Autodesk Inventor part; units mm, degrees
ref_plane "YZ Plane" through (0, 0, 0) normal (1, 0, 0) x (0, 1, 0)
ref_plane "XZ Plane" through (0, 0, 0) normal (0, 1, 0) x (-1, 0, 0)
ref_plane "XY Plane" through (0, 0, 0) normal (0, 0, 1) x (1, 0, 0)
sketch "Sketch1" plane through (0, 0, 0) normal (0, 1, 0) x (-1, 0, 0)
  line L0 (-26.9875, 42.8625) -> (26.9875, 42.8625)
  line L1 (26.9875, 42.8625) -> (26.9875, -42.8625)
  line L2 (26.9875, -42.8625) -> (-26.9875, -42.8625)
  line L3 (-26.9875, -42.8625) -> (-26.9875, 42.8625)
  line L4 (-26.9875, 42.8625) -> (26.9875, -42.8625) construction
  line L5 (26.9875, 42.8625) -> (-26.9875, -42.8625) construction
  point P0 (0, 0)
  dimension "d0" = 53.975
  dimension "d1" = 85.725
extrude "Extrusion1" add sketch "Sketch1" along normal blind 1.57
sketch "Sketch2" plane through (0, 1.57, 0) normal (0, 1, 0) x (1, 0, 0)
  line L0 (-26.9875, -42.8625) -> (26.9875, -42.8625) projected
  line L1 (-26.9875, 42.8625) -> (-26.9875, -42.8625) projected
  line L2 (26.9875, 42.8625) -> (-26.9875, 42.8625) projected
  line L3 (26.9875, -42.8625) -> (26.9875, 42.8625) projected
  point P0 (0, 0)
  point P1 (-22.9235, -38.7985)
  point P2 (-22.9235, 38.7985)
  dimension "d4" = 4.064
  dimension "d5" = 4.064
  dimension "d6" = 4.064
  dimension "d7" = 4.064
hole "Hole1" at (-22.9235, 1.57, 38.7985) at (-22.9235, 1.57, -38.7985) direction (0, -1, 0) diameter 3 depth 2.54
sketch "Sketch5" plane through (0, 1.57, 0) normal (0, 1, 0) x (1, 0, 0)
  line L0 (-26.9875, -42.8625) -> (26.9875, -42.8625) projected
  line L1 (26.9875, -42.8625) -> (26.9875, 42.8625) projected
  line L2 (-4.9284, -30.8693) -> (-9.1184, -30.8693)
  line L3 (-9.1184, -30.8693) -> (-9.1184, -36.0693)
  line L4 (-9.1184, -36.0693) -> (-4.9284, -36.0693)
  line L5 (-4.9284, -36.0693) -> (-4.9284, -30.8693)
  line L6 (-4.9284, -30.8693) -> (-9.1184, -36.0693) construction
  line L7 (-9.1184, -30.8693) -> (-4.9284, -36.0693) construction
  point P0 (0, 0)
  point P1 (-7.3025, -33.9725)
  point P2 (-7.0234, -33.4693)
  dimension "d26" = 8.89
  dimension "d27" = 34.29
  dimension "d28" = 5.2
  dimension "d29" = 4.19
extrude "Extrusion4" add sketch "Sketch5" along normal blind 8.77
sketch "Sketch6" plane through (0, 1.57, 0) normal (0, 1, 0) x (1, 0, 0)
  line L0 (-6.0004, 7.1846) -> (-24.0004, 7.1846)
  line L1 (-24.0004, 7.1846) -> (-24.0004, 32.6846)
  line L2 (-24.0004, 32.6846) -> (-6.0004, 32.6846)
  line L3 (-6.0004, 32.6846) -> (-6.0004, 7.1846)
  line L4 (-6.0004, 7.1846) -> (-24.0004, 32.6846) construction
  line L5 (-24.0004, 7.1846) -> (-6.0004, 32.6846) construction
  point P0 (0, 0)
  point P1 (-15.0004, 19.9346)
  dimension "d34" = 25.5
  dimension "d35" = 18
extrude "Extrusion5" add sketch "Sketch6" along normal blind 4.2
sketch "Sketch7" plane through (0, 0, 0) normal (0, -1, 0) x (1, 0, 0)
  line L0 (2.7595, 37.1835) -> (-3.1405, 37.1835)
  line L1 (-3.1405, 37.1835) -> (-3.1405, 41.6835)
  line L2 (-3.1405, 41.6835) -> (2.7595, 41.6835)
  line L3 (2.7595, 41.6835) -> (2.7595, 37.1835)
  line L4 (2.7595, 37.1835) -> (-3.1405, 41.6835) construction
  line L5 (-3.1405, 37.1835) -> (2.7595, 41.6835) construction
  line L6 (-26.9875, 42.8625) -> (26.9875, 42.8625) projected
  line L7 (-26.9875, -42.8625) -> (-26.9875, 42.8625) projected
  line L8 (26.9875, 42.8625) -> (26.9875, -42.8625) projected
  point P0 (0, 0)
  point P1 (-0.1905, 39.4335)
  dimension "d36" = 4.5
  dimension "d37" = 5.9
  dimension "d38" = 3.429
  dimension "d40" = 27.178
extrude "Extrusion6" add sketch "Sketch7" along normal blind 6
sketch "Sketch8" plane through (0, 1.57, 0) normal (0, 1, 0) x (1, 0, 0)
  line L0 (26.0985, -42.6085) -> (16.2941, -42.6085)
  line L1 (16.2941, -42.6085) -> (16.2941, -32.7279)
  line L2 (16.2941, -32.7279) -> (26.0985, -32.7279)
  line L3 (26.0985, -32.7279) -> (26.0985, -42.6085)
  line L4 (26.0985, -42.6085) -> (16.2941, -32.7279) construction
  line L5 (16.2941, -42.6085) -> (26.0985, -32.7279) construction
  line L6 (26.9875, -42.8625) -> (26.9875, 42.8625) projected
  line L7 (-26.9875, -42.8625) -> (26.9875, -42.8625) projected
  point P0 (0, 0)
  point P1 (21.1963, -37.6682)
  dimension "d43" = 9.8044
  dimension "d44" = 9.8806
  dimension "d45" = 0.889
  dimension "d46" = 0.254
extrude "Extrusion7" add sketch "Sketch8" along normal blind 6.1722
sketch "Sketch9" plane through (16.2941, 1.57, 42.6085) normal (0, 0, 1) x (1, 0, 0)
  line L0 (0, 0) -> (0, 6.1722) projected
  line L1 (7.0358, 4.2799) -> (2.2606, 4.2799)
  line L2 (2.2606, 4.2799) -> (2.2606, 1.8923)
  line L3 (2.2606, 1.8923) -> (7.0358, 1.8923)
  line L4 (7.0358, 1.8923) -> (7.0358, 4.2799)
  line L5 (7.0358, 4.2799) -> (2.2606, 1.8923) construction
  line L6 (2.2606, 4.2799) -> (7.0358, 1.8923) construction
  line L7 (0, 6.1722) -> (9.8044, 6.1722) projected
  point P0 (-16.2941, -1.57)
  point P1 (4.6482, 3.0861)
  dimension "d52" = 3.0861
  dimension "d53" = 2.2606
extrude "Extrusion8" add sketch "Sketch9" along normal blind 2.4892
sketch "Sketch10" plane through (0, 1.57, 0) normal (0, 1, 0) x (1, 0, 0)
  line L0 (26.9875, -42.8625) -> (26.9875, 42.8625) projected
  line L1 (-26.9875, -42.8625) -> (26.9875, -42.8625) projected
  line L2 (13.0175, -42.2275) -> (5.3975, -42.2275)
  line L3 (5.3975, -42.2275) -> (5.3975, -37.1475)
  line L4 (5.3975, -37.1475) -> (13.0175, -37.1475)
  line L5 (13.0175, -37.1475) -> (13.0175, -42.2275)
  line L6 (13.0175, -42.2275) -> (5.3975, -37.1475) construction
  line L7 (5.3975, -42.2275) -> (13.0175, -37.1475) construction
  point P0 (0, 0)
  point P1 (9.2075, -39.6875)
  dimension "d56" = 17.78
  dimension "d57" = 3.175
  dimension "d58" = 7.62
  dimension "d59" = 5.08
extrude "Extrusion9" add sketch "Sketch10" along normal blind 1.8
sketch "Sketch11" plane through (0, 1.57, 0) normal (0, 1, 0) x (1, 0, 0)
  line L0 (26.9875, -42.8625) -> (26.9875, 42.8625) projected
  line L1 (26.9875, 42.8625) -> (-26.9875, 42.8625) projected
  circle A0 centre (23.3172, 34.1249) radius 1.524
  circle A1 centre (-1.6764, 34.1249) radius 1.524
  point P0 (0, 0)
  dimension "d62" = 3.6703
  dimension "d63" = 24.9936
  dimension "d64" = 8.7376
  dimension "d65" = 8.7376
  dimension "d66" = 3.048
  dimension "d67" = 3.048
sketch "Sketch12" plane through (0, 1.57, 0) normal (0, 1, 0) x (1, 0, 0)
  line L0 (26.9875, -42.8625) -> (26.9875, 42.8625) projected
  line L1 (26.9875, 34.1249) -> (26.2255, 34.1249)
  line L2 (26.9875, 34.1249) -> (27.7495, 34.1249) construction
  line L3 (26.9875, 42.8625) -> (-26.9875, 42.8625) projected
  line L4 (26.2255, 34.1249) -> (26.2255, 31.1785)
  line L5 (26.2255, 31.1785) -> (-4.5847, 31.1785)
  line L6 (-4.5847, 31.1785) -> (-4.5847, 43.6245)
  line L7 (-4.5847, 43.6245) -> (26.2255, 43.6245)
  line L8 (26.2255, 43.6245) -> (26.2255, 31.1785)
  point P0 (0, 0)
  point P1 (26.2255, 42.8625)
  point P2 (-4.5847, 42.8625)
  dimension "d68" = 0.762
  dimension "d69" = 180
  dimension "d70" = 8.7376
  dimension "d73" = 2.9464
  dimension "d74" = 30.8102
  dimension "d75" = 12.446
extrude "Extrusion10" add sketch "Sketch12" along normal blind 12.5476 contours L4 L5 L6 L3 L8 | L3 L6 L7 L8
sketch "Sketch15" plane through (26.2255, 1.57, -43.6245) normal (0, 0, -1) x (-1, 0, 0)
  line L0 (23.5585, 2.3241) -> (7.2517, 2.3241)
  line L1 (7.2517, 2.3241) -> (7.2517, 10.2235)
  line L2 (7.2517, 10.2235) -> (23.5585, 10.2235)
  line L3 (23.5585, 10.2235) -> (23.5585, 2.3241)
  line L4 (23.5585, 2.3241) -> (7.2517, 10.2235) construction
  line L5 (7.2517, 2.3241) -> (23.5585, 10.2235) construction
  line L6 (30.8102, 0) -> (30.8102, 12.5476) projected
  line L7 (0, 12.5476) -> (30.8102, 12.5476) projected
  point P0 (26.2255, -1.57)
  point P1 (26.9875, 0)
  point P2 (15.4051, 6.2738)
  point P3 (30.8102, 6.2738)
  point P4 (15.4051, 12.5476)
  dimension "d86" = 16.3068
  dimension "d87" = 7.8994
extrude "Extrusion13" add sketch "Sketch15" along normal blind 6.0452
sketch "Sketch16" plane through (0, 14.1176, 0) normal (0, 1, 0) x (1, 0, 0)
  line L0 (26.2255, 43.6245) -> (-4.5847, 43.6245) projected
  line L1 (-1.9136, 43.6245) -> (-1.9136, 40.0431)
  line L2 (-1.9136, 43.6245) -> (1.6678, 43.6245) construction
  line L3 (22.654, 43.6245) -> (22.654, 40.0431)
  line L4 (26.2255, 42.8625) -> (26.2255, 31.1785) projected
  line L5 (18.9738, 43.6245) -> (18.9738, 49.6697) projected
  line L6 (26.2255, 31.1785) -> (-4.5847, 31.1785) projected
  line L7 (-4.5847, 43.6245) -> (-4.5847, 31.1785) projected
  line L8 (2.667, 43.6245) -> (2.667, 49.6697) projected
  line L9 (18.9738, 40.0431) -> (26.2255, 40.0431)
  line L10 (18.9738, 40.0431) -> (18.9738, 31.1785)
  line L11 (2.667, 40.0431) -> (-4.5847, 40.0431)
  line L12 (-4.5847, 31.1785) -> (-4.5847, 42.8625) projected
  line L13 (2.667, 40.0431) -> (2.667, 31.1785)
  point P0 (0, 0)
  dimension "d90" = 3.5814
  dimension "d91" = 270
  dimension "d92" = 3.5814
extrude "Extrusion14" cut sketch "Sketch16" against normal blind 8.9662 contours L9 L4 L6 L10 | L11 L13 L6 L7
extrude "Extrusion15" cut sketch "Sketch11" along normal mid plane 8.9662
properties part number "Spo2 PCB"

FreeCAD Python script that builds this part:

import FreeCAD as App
import Part
import Sketcher
from FreeCAD import Vector
Q = App.Units.Quantity

doc = App.newDocument("Part")
params = doc.addObject("Spreadsheet::Sheet", "Params")
for row, (alias, value) in enumerate([
    ("sketch1_width", "2.125 in"),
    ("sketch1_height", "3.375 in"),
    ("pad1_length", "0.061811 in"),
    ("hole_diameter", "0.1181102 in"),
    ("hole_depth", "0.1 in"),
    ("pad2_length", "8.77 mm"),
    ("pad3_length", "4.2 mm"),
    ("pad4_length", "6 mm"),
    ("sketch6_width", "0.386 in"),
    ("sketch6_height", "0.389 in"),
    ("pad5_length", "0.243 in"),
    ("sketch7_width", "0.188 in"),
    ("sketch7_height", "0.094 in"),
    ("pad6_length", "0.098 in"),
    ("sketch8_width", "0.3 in"),
    ("sketch8_height", "0.2 in"),
    ("pad7_length", "1.8 mm"),
    ("sketch9_height", "0.49 in"),
    ("sketch9_width", "1.213 in"),
    ("pad8_length", "0.494 in"),
    ("sketch10_width", "0.642 in"),
    ("sketch10_height", "0.311 in"),
    ("pad9_length", "0.238 in"),
    ("sketch11_height", "0.349 in"),
    ("pocket1_length", "0.353 in"),
    ("sketch12_diameter", "0.12 in"),
    ("pocket2_length", "0.353 in"),
], start=1):
    params.set(f"A{row}", alias)
    params.set(f"B{row}", "=" + value)
    params.setAlias(f"B{row}", alias)

body = doc.addObject("PartDesign::Body", "Body")

sketch1 = doc.addObject("Sketcher::SketchObject", "Sketch")
body.addObject(sketch1)
sketch1.AttachmentSupport = (doc.XZ_Plane, [""])
sketch1.MapMode = "FlatFace"
sketch1.addGeometry([
    Part.LineSegment(Vector(-27, 43, 0), Vector(27, 43, 0)),
    Part.LineSegment(Vector(27, 43, 0), Vector(27, -43, 0)),
    Part.LineSegment(Vector(27, -43, 0), Vector(-27, -43, 0)),
    Part.LineSegment(Vector(-27, -43, 0), Vector(-27, 43, 0)),
], False)
sketch1.addConstraint([
    Sketcher.Constraint("Coincident", 0, 2, 1, 1),
    Sketcher.Constraint("Coincident", 1, 2, 2, 1),
    Sketcher.Constraint("Coincident", 2, 2, 3, 1),
    Sketcher.Constraint("Coincident", 3, 2, 0, 1),
    Sketcher.Constraint("Horizontal", 0),
    Sketcher.Constraint("Vertical", 1),
    Sketcher.Constraint("Horizontal", 2),
    Sketcher.Constraint("Vertical", 3),
    Sketcher.Constraint("Symmetric", 0, 2, 2, 2, -1, 1),
    Sketcher.Constraint("DistanceX", 0, 1, 0, 2, Q("2.125 in")),
    Sketcher.Constraint("DistanceY", 1, 2, 1, 1, Q("3.375 in")),
])
sketch1.setExpression("Constraints[9]", "Params.sketch1_width")
sketch1.setExpression("Constraints[10]", "Params.sketch1_height")
pad1 = doc.addObject("PartDesign::Pad", "Pad")
body.addObject(pad1)
pad1.Profile = sketch1
pad1.setExpression("Length", "Params.pad1_length")
pad1.Reversed = True

sketch2 = doc.addObject("Sketcher::SketchObject", "Sketch001")
body.addObject(sketch2)
sketch2.AttachmentSupport = (doc.XZ_Plane, [""])
sketch2.MapMode = "FlatFace"
sketch2.AttachmentOffset = App.Placement(Vector(0, 0, -0.061811 * 25.4), App.Rotation())
sketch2.addGeometry([
    Part.Circle(Vector(-22.9, 38.8, 0), Vector(0, 0, 1), 1.5),
    Part.Circle(Vector(-22.9, -38.8, 0), Vector(0, 0, 1), 1.5),
], False)
sketch2.addConstraint([
    Sketcher.Constraint("Equal", 0, 1),
    Sketcher.Constraint("Symmetric", 0, 3, 1, 3, -1),
    Sketcher.Constraint("Diameter", 0, Q("0.1181 in")),
    Sketcher.Constraint("DistanceY", 1, 3, 0, 3, Q("3.055 in")),
    Sketcher.Constraint("DistanceX", 0, 3, -1, 1, Q("0.9025 in")),
])
doc.recompute()
hole = doc.addObject("PartDesign::Hole", "Hole")
body.addObject(hole)
hole.Profile = sketch2
hole.ThreadType = "None"
hole.setExpression("Diameter", "Params.hole_diameter")
hole.DepthType = "Dimension"
hole.setExpression("Depth", "Params.hole_depth")
hole.DrillPoint = "Flat"
hole.Reversed = True

sketch3 = doc.addObject("Sketcher::SketchObject", "Sketch002")
body.addObject(sketch3)
sketch3.AttachmentSupport = (doc.XZ_Plane, [""])
sketch3.MapMode = "FlatFace"
sketch3.AttachmentOffset = App.Placement(Vector(0, 0, -0.061811 * 25.4), App.Rotation())
sketch3.addGeometry([
    Part.LineSegment(Vector(-4.9, 36.1, 0), Vector(-4.9, 30.9, 0)),
    Part.LineSegment(Vector(-4.9, 30.9, 0), Vector(-9.1, 30.9, 0)),
    Part.LineSegment(Vector(-9.1, 30.9, 0), Vector(-9.1, 36.1, 0)),
    Part.LineSegment(Vector(-9.1, 36.1, 0), Vector(-4.9, 36.1, 0)),
], False)
sketch3.addConstraint([
    Sketcher.Constraint("Coincident", 0, 2, 1, 1),
    Sketcher.Constraint("Coincident", 1, 2, 2, 1),
    Sketcher.Constraint("Coincident", 2, 2, 3, 1),
    Sketcher.Constraint("Coincident", 3, 2, 0, 1),
    Sketcher.Constraint("Vertical", 0),
    Sketcher.Constraint("Horizontal", 1),
    Sketcher.Constraint("Vertical", 2),
    Sketcher.Constraint("Horizontal", 3),
    Sketcher.Constraint("DistanceX", 1, 2, 1, 1, 4.19),
    Sketcher.Constraint("DistanceY", 0, 2, 0, 1, 5.2),
    Sketcher.Constraint("DistanceX", 1, 2, -1, 1, Q("0.359 in")),
    Sketcher.Constraint("DistanceY", -1, 1, 0, 2, 30.8693),
])
pad2 = doc.addObject("PartDesign::Pad", "Pad001")
body.addObject(pad2)
pad2.Profile = sketch3
pad2.setExpression("Length", "Params.pad2_length")
pad2.Reversed = True

sketch4 = doc.addObject("Sketcher::SketchObject", "Sketch003")
body.addObject(sketch4)
sketch4.AttachmentSupport = (doc.XZ_Plane, [""])
sketch4.MapMode = "FlatFace"
sketch4.AttachmentOffset = App.Placement(Vector(0, 0, -0.061811 * 25.4), App.Rotation())
sketch4.addGeometry([
    Part.LineSegment(Vector(-24, -7, 0), Vector(-6, -7, 0)),
    Part.LineSegment(Vector(-6, -7, 0), Vector(-6, -33, 0)),
    Part.LineSegment(Vector(-6, -33, 0), Vector(-24, -33, 0)),
    Part.LineSegment(Vector(-24, -33, 0), Vector(-24, -7, 0)),
], False)
sketch4.addConstraint([
    Sketcher.Constraint("Coincident", 0, 2, 1, 1),
    Sketcher.Constraint("Coincident", 1, 2, 2, 1),
    Sketcher.Constraint("Coincident", 2, 2, 3, 1),
    Sketcher.Constraint("Coincident", 3, 2, 0, 1),
    Sketcher.Constraint("Horizontal", 0),
    Sketcher.Constraint("Vertical", 1),
    Sketcher.Constraint("Horizontal", 2),
    Sketcher.Constraint("Vertical", 3),
    Sketcher.Constraint("DistanceX", 0, 1, 0, 2, 18.0),
    Sketcher.Constraint("DistanceY", 1, 2, 1, 1, 25.5),
    Sketcher.Constraint("DistanceY", 1, 2, -1, 1, Q("1.2868 in")),
    Sketcher.Constraint("DistanceX", 2, 2, -1, 1, Q("0.9449 in")),
])
pad3 = doc.addObject("PartDesign::Pad", "Pad002")
body.addObject(pad3)
pad3.Profile = sketch4
pad3.setExpression("Length", "Params.pad3_length")
pad3.Reversed = True

sketch5 = doc.addObject("Sketcher::SketchObject", "Sketch004")
body.addObject(sketch5)
sketch5.AttachmentSupport = (doc.XZ_Plane, [""])
sketch5.MapMode = "FlatFace"
sketch5.addGeometry([
    Part.LineSegment(Vector(-3.1, 37.2, 0), Vector(2.8, 37.2, 0)),
    Part.LineSegment(Vector(2.8, 37.2, 0), Vector(2.8, 41.7, 0)),
    Part.LineSegment(Vector(2.8, 41.7, 0), Vector(-3.1, 41.7, 0)),
    Part.LineSegment(Vector(-3.1, 41.7, 0), Vector(-3.1, 37.2, 0)),
], False)
sketch5.addConstraint([
    Sketcher.Constraint("Coincident", 0, 2, 1, 1),
    Sketcher.Constraint("Coincident", 1, 2, 2, 1),
    Sketcher.Constraint("Coincident", 2, 2, 3, 1),
    Sketcher.Constraint("Coincident", 3, 2, 0, 1),
    Sketcher.Constraint("Horizontal", 0),
    Sketcher.Constraint("Vertical", 1),
    Sketcher.Constraint("Horizontal", 2),
    Sketcher.Constraint("Vertical", 3),
    Sketcher.Constraint("DistanceX", 0, 1, 0, 2, 5.9),
    Sketcher.Constraint("DistanceY", 1, 1, 1, 2, 4.5),
    Sketcher.Constraint("DistanceX", -1, 1, 0, 2, 2.7595),
    Sketcher.Constraint("DistanceY", -1, 1, 0, 2, 37.1835),
])
pad4 = doc.addObject("PartDesign::Pad", "Pad003")
body.addObject(pad4)
pad4.Profile = sketch5
pad4.setExpression("Length", "Params.pad4_length")

sketch6 = doc.addObject("Sketcher::SketchObject", "Sketch005")
body.addObject(sketch6)
sketch6.AttachmentSupport = (doc.XZ_Plane, [""])
sketch6.MapMode = "FlatFace"
sketch6.AttachmentOffset = App.Placement(Vector(0, 0, -0.061811 * 25.4), App.Rotation())
sketch6.addGeometry([
    Part.LineSegment(Vector(16, 43, 0), Vector(26, 43, 0)),
    Part.LineSegment(Vector(26, 43, 0), Vector(26, 33, 0)),
    Part.LineSegment(Vector(26, 33, 0), Vector(16, 33, 0)),
    Part.LineSegment(Vector(16, 33, 0), Vector(16, 43, 0)),
], False)
sketch6.addConstraint([
    Sketcher.Constraint("Coincident", 0, 2, 1, 1),
    Sketcher.Constraint("Coincident", 1, 2, 2, 1),
    Sketcher.Constraint("Coincident", 2, 2, 3, 1),
    Sketcher.Constraint("Coincident", 3, 2, 0, 1),
    Sketcher.Constraint("Horizontal", 0),
    Sketcher.Constraint("Vertical", 1),
    Sketcher.Constraint("Horizontal", 2),
    Sketcher.Constraint("Vertical", 3),
    Sketcher.Constraint("DistanceX", 0, 1, 0, 2, Q("0.386 in")),
    Sketcher.Constraint("DistanceY", 1, 2, 1, 1, Q("0.389 in")),
    Sketcher.Constraint("DistanceX", -1, 1, 0, 2, Q("1.0275 in")),
    Sketcher.Constraint("DistanceY", -1, 1, 0, 2, Q("1.6775 in")),
])
sketch6.setExpression("Constraints[8]", "Params.sketch6_width")
sketch6.setExpression("Constraints[9]", "Params.sketch6_height")
pad5 = doc.addObject("PartDesign::Pad", "Pad004")
body.addObject(pad5)
pad5.Profile = sketch6
pad5.setExpression("Length", "Params.pad5_length")
pad5.Reversed = True

sketch7 = doc.addObject("Sketcher::SketchObject", "Sketch006")
body.addObject(sketch7)
sketch7.AttachmentSupport = (doc.XY_Plane, [""])
sketch7.MapMode = "FlatFace"
sketch7.AttachmentOffset = App.Placement(Vector(0, 0, 1.6775 * 25.4), App.Rotation())
sketch7.addGeometry([
    Part.LineSegment(Vector(23.3, 3.5, 0), Vector(23.3, 5.8, 0)),
    Part.LineSegment(Vector(23.3, 5.8, 0), Vector(18.6, 5.8, 0)),
    Part.LineSegment(Vector(18.6, 5.8, 0), Vector(18.6, 3.5, 0)),
    Part.LineSegment(Vector(18.6, 3.5, 0), Vector(23.3, 3.5, 0)),
], False)
sketch7.addConstraint([
    Sketcher.Constraint("Coincident", 0, 2, 1, 1),
    Sketcher.Constraint("Coincident", 1, 2, 2, 1),
    Sketcher.Constraint("Coincident", 2, 2, 3, 1),
    Sketcher.Constraint("Coincident", 3, 2, 0, 1),
    Sketcher.Constraint("Vertical", 0),
    Sketcher.Constraint("Horizontal", 1),
    Sketcher.Constraint("Vertical", 2),
    Sketcher.Constraint("Horizontal", 3),
    Sketcher.Constraint("DistanceX", 1, 2, 1, 1, Q("0.188 in")),
    Sketcher.Constraint("DistanceY", 0, 1, 0, 2, Q("0.094 in")),
    Sketcher.Constraint("DistanceX", -1, 1, 0, 2, Q("0.9185 in")),
    Sketcher.Constraint("DistanceY", -1, 1, 0, 2, Q("0.2303 in")),
])
sketch7.setExpression("Constraints[8]", "Params.sketch7_width")
sketch7.setExpression("Constraints[9]", "Params.sketch7_height")
pad6 = doc.addObject("PartDesign::Pad", "Pad005")
body.addObject(pad6)
pad6.Profile = sketch7
pad6.setExpression("Length", "Params.pad6_length")

sketch8 = doc.addObject("Sketcher::SketchObject", "Sketch007")
body.addObject(sketch8)
sketch8.AttachmentSupport = (doc.XZ_Plane, [""])
sketch8.MapMode = "FlatFace"
sketch8.AttachmentOffset = App.Placement(Vector(0, 0, -0.061811 * 25.4), App.Rotation())
sketch8.addGeometry([
    Part.LineSegment(Vector(5, 42, 0), Vector(13, 42, 0)),
    Part.LineSegment(Vector(13, 42, 0), Vector(13, 37, 0)),
    Part.LineSegment(Vector(13, 37, 0), Vector(5, 37, 0)),
    Part.LineSegment(Vector(5, 37, 0), Vector(5, 42, 0)),
], False)
sketch8.addConstraint([
    Sketcher.Constraint("Coincident", 0, 2, 1, 1),
    Sketcher.Constraint("Coincident", 1, 2, 2, 1),
    Sketcher.Constraint("Coincident", 2, 2, 3, 1),
    Sketcher.Constraint("Coincident", 3, 2, 0, 1),
    Sketcher.Constraint("Horizontal", 0),
    Sketcher.Constraint("Vertical", 1),
    Sketcher.Constraint("Horizontal", 2),
    Sketcher.Constraint("Vertical", 3),
    Sketcher.Constraint("DistanceX", 0, 1, 0, 2, Q("0.3 in")),
    Sketcher.Constraint("DistanceY", 1, 2, 1, 1, Q("0.2 in")),
    Sketcher.Constraint("DistanceX", -1, 1, 0, 2, Q("0.5125 in")),
    Sketcher.Constraint("DistanceY", -1, 1, 0, 2, Q("1.6625 in")),
])
sketch8.setExpression("Constraints[8]", "Params.sketch8_width")
sketch8.setExpression("Constraints[9]", "Params.sketch8_height")
pad7 = doc.addObject("PartDesign::Pad", "Pad006")
body.addObject(pad7)
pad7.Profile = sketch8
pad7.setExpression("Length", "Params.pad7_length")
pad7.Reversed = True

sketch9 = doc.addObject("Sketcher::SketchObject", "Sketch008")
body.addObject(sketch9)
sketch9.AttachmentSupport = (doc.XZ_Plane, [""])
sketch9.MapMode = "FlatFace"
sketch9.AttachmentOffset = App.Placement(Vector(0, 0, -0.061811 * 25.4), App.Rotation())
sketch9.addGeometry([
    Part.LineSegment(Vector(26, -31, 0), Vector(26, -44, 0)),
    Part.LineSegment(Vector(26, -44, 0), Vector(-5, -44, 0)),
    Part.LineSegment(Vector(-5, -44, 0), Vector(-5, -31, 0)),
    Part.LineSegment(Vector(-5, -31, 0), Vector(26, -31, 0)),
], False)
sketch9.addConstraint([
    Sketcher.Constraint("Coincident", 0, 2, 1, 1),
    Sketcher.Constraint("Coincident", 1, 2, 2, 1),
    Sketcher.Constraint("Coincident", 2, 2, 3, 1),
    Sketcher.Constraint("Coincident", 3, 2, 0, 1),
    Sketcher.Constraint("Vertical", 0),
    Sketcher.Constraint("Horizontal", 1),
    Sketcher.Constraint("Vertical", 2),
    Sketcher.Constraint("Horizontal", 3),
    Sketcher.Constraint("DistanceY", 0, 2, 0, 1, Q("0.49 in")),
    Sketcher.Constraint("DistanceX", 1, 2, 1, 1, Q("1.213 in")),
    Sketcher.Constraint("DistanceX", -1, 1, 0, 2, Q("1.0325 in")),
    Sketcher.Constraint("DistanceY", 0, 2, -1, 1, Q("1.7175 in")),
])
sketch9.setExpression("Constraints[8]", "Params.sketch9_height")
sketch9.setExpression("Constraints[9]", "Params.sketch9_width")
pad8 = doc.addObject("PartDesign::Pad", "Pad007")
body.addObject(pad8)
pad8.Profile = sketch9
pad8.setExpression("Length", "Params.pad8_length")
pad8.Reversed = True

sketch10 = doc.addObject("Sketcher::SketchObject", "Sketch009")
body.addObject(sketch10)
sketch10.AttachmentSupport = (doc.XY_Plane, [""])
sketch10.MapMode = "FlatFace"
sketch10.AttachmentOffset = App.Placement(Vector(0, 0, -1.7175 * 25.4), App.Rotation())
sketch10.addGeometry([
    Part.LineSegment(Vector(19, 4, 0), Vector(3, 4, 0)),
    Part.LineSegment(Vector(3, 4, 0), Vector(3, 12, 0)),
    Part.LineSegment(Vector(3, 12, 0), Vector(19, 12, 0)),
    Part.LineSegment(Vector(19, 12, 0), Vector(19, 4, 0)),
], False)
sketch10.addConstraint([
    Sketcher.Constraint("Coincident", 0, 2, 1, 1),
    Sketcher.Constraint("Coincident", 1, 2, 2, 1),
    Sketcher.Constraint("Coincident", 2, 2, 3, 1),
    Sketcher.Constraint("Coincident", 3, 2, 0, 1),
    Sketcher.Constraint("Horizontal", 0),
    Sketcher.Constraint("Vertical", 1),
    Sketcher.Constraint("Horizontal", 2),
    Sketcher.Constraint("Vertical", 3),
    Sketcher.Constraint("DistanceX", 0, 2, 0, 1, Q("0.642 in")),
    Sketcher.Constraint("DistanceY", 1, 1, 1, 2, Q("0.311 in")),
    Sketcher.Constraint("DistanceX", -1, 1, 0, 2, Q("0.105 in")),
    Sketcher.Constraint("DistanceY", -1, 1, 0, 2, Q("0.1533 in")),
])
sketch10.setExpression("Constraints[8]", "Params.sketch10_width")
sketch10.setExpression("Constraints[9]", "Params.sketch10_height")
pad9 = doc.addObject("PartDesign::Pad", "Pad008")
body.addObject(pad9)
pad9.Profile = sketch10
pad9.setExpression("Length", "Params.pad9_length")
pad9.Reversed = True

sketch11 = doc.addObject("Sketcher::SketchObject", "Sketch010")
body.addObject(sketch11)
sketch11.AttachmentSupport = (doc.XZ_Plane, [""])
sketch11.MapMode = "FlatFace"
sketch11.AttachmentOffset = App.Placement(Vector(0, 0, -0.555811 * 25.4), App.Rotation())
sketch11.addGeometry([
    Part.LineSegment(Vector(26, -40, 0), Vector(19, -40, 0)),
    Part.LineSegment(Vector(19, -40, 0), Vector(19, -31, 0)),
    Part.LineSegment(Vector(19, -31, 0), Vector(26, -31, 0)),
    Part.LineSegment(Vector(26, -31, 0), Vector(26, -40, 0)),
    Part.LineSegment(Vector(3, -40, 0), Vector(-5, -40, 0)),
    Part.LineSegment(Vector(-5, -40, 0), Vector(-5, -31, 0)),
    Part.LineSegment(Vector(-5, -31, 0), Vector(3, -31, 0)),
    Part.LineSegment(Vector(3, -31, 0), Vector(3, -40, 0)),
], False)
sketch11.addConstraint([
    Sketcher.Constraint("Coincident", 0, 2, 1, 1),
    Sketcher.Constraint("Coincident", 1, 2, 2, 1),
    Sketcher.Constraint("Coincident", 2, 2, 3, 1),
    Sketcher.Constraint("Coincident", 3, 2, 0, 1),
    Sketcher.Constraint("Coincident", 4, 2, 5, 1),
    Sketcher.Constraint("Coincident", 5, 2, 6, 1),
    Sketcher.Constraint("Coincident", 6, 2, 7, 1),
    Sketcher.Constraint("Coincident", 7, 2, 4, 1),
    Sketcher.Constraint("Horizontal", 0),
    Sketcher.Constraint("Vertical", 1),
    Sketcher.Constraint("Horizontal", 2),
    Sketcher.Constraint("Vertical", 3),
    Sketcher.Constraint("Horizontal", 4),
    Sketcher.Constraint("Vertical", 5),
    Sketcher.Constraint("Horizontal", 6),
    Sketcher.Constraint("Vertical", 7),
    Sketcher.Constraint("Horizontal", 3, 2, 4, 2),
    Sketcher.Constraint("Horizontal", 2, 2, 5, 2),
    Sketcher.Constraint("Equal", 2, 4),
    Sketcher.Constraint("DistanceY", 1, 1, 1, 2, Q("0.349 in")),
    Sketcher.Constraint("DistanceX", 0, 2, 0, 1, Q("0.2855 in")),
    Sketcher.Constraint("DistanceX", -1, 1, 0, 2, Q("0.747 in")),
    Sketcher.Constraint("DistanceX", -1, 1, 6, 2, Q("0.105 in")),
    Sketcher.Constraint("DistanceY", 0, 2, -1, 1, Q("1.5765 in")),
])
sketch11.setExpression("Constraints[19]", "Params.sketch11_height")
pocket1 = doc.addObject("PartDesign::Pocket", "Pocket")
body.addObject(pocket1)
pocket1.Profile = sketch11
pocket1.setExpression("Length", "Params.pocket1_length")
pocket1.Reversed = True

sketch12 = doc.addObject("Sketcher::SketchObject", "Sketch011")
body.addObject(sketch12)
sketch12.AttachmentSupport = (doc.XZ_Plane, [""])
sketch12.MapMode = "FlatFace"
sketch12.AttachmentOffset = App.Placement(Vector(0, 0, -0.061811 * 25.4), App.Rotation())
sketch12.addGeometry([
    Part.Circle(Vector(23.3, -34.1, 0), Vector(0, 0, 1), 1.5),
    Part.Circle(Vector(-1.7, -34.1, 0), Vector(0, 0, 1), 1.5),
], False)
sketch12.addConstraint([
    Sketcher.Constraint("Equal", 0, 1),
    Sketcher.Constraint("Horizontal", 0, 3, 1, 3),
    Sketcher.Constraint("Diameter", 0, Q("0.12 in")),
    Sketcher.Constraint("DistanceX", 1, 3, 0, 3, Q("0.984 in")),
    Sketcher.Constraint("DistanceX", -1, 1, 0, 3, Q("0.918 in")),
    Sketcher.Constraint("DistanceY", 0, 3, -1, 1, Q("1.3435 in")),
])
sketch12.setExpression("Constraints[2]", "Params.sketch12_diameter")
pocket2 = doc.addObject("PartDesign::Pocket", "Pocket001")
body.addObject(pocket2)
pocket2.Profile = sketch12
pocket2.setExpression("Length", "Params.pocket2_length")
pocket2.Midplane = True

doc.recompute()
